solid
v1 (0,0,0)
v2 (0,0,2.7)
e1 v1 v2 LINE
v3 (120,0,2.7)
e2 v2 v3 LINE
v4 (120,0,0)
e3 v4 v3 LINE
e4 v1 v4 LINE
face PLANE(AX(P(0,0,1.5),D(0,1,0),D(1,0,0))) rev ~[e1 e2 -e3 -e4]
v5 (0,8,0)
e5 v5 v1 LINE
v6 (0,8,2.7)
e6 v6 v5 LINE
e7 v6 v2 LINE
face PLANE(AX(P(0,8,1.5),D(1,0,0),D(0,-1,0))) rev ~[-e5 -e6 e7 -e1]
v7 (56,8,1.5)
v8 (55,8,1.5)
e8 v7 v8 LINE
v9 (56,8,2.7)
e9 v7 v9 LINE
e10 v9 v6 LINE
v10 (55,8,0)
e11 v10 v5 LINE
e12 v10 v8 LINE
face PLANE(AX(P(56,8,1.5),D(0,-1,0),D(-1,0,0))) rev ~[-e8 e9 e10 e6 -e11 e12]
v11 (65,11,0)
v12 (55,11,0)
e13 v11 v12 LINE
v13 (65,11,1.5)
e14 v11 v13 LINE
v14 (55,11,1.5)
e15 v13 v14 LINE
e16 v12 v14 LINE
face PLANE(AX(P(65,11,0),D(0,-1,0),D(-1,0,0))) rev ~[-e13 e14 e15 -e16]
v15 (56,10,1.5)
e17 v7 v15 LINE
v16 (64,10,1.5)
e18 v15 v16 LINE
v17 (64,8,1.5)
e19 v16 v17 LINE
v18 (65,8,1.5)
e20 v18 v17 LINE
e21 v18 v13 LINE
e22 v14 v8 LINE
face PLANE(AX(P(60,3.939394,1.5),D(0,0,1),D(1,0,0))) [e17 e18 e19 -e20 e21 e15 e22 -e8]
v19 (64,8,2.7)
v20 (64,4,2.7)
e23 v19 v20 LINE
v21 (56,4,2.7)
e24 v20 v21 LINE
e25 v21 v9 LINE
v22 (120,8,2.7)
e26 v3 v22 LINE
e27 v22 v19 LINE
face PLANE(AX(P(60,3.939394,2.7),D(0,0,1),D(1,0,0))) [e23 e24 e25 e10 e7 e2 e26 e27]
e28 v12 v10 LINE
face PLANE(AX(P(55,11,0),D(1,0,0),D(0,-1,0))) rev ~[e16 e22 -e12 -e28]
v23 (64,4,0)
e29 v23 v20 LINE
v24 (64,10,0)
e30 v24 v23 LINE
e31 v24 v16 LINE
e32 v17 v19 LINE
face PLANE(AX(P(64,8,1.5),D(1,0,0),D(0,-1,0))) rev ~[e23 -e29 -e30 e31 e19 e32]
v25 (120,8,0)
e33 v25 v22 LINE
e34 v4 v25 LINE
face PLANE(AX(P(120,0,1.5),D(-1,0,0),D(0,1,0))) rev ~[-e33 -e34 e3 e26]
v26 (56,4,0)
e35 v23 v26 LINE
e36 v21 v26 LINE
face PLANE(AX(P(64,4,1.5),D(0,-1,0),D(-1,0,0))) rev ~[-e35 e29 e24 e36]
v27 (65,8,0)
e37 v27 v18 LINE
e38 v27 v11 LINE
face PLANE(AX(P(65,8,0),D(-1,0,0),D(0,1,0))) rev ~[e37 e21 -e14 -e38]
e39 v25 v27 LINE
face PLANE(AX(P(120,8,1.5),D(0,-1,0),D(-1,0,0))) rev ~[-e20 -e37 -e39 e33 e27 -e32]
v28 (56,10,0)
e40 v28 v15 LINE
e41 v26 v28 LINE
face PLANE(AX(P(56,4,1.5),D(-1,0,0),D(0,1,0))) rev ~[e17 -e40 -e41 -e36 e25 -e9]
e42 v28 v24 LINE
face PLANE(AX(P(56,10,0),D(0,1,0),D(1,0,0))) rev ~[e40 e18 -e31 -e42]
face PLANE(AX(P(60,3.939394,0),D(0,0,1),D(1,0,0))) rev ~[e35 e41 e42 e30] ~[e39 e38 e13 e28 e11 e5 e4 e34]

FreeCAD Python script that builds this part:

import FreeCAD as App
import Part
import Sketcher
Q = App.Units.Quantity

doc = App.newDocument("Part")
body = doc.addObject("PartDesign::Body", "Body")

# Sketch on XY plane
sketch1 = body.newObject("Sketcher::SketchObject", "Sketch")
sketch1.AttachmentSupport = (doc.getObject("XY_Plane"), [""])
sketch1.MapMode = "FlatFace"
sketch1.addGeometry(Part.LineSegment(App.Vector(0, 8, 0), App.Vector(0, 0, 0)), False)
sketch1.addGeometry(Part.LineSegment(App.Vector(0, 0, 0), App.Vector(120, 0, 0)), False)
sketch1.addGeometry(Part.LineSegment(App.Vector(120, 0, 0), App.Vector(120, 8, 0)), False)
sketch1.addGeometry(Part.LineSegment(App.Vector(120, 8, 0), App.Vector(65, 8, 0)), False)
sketch1.addGeometry(Part.LineSegment(App.Vector(65, 8, 0), App.Vector(65, 11, 0)), False)
sketch1.addGeometry(Part.LineSegment(App.Vector(65, 11, 0), App.Vector(55, 11, 0)), False)
sketch1.addGeometry(Part.LineSegment(App.Vector(55, 11, 0), App.Vector(55, 8, 0)), False)
sketch1.addGeometry(Part.LineSegment(App.Vector(55, 8, 0), App.Vector(0, 8, 0)), False)
sketch1.addGeometry(Part.LineSegment(App.Vector(64, 4, 0), App.Vector(56, 4, 0)), False)
sketch1.addGeometry(Part.LineSegment(App.Vector(56, 4, 0), App.Vector(56, 10, 0)), False)
sketch1.addGeometry(Part.LineSegment(App.Vector(56, 10, 0), App.Vector(64, 10, 0)), False)
sketch1.addGeometry(Part.LineSegment(App.Vector(64, 10, 0), App.Vector(64, 4, 0)), False)
sketch1.addConstraint(Sketcher.Constraint("Coincident", 0, 2, 1, 1))
sketch1.addConstraint(Sketcher.Constraint("Coincident", 1, 2, 2, 1))
sketch1.addConstraint(Sketcher.Constraint("Coincident", 2, 2, 3, 1))
sketch1.addConstraint(Sketcher.Constraint("Coincident", 3, 2, 4, 1))
sketch1.addConstraint(Sketcher.Constraint("Coincident", 4, 2, 5, 1))
sketch1.addConstraint(Sketcher.Constraint("Coincident", 5, 2, 6, 1))
sketch1.addConstraint(Sketcher.Constraint("Coincident", 6, 2, 7, 1))
sketch1.addConstraint(Sketcher.Constraint("Coincident", 7, 2, 0, 1))
sketch1.addConstraint(Sketcher.Constraint("Coincident", 8, 2, 9, 1))
sketch1.addConstraint(Sketcher.Constraint("Coincident", 9, 2, 10, 1))
sketch1.addConstraint(Sketcher.Constraint("Coincident", 10, 2, 11, 1))
sketch1.addConstraint(Sketcher.Constraint("Coincident", 11, 2, 8, 1))
sketch1.addConstraint(Sketcher.Constraint("Vertical", 0))
sketch1.addConstraint(Sketcher.Constraint("Horizontal", 1))
sketch1.addConstraint(Sketcher.Constraint("Vertical", 2))
sketch1.addConstraint(Sketcher.Constraint("Horizontal", 3))
sketch1.addConstraint(Sketcher.Constraint("Vertical", 4))
sketch1.addConstraint(Sketcher.Constraint("Horizontal", 5))
sketch1.addConstraint(Sketcher.Constraint("Vertical", 6))
sketch1.addConstraint(Sketcher.Constraint("Horizontal", 7))
sketch1.addConstraint(Sketcher.Constraint("Horizontal", 8))
sketch1.addConstraint(Sketcher.Constraint("Vertical", 9))
sketch1.addConstraint(Sketcher.Constraint("Horizontal", 10))
sketch1.addConstraint(Sketcher.Constraint("Vertical", 11))
sketch1.addConstraint(Sketcher.Constraint("Coincident", 0, 2, -1, 1))
sketch1.addConstraint(Sketcher.Constraint("Horizontal", 3, 2, 6, 2))
sketch1.addConstraint(Sketcher.Constraint("Equal", 3, 7))
sketch1.addConstraint(Sketcher.Constraint("Equal", 10, 0))
sketch1.addConstraint(Sketcher.Constraint("DistanceX", 1, 1, 1, 2, Q("120 mm")))
sketch1.addConstraint(Sketcher.Constraint("DistanceX", 3, 2, 3, 1, Q("55 mm")))
sketch1.addConstraint(Sketcher.Constraint("DistanceX", 8, 2, 8, 1, Q("8 mm")))
sketch1.addConstraint(Sketcher.Constraint("DistanceY", 4, 1, 4, 2, Q("3 mm")))
sketch1.addConstraint(Sketcher.Constraint("DistanceY", 9, 1, 9, 2, Q("6 mm")))
sketch1.addConstraint(Sketcher.Constraint("DistanceX", -1, 1, 8, 2, Q("56 mm")))
sketch1.addConstraint(Sketcher.Constraint("DistanceY", -1, 1, 8, 2, Q("4 mm")))
pad1 = body.newObject("PartDesign::Pad", "Pad")
pad1.Profile = sketch1
pad1.Length = 1.5

# Sketch on XY plane
sketch2 = body.newObject("Sketcher::SketchObject", "Sketch001")
sketch2.AttachmentSupport = (doc.getObject("XY_Plane"), [""])
sketch2.MapMode = "FlatFace"
sketch2.AttachmentOffset = App.Placement(App.Vector(0, 0, 1.5), App.Rotation())
sketch2.addGeometry(Part.LineSegment(App.Vector(0, 8, 0), App.Vector(0, 0, 0)), False)
sketch2.addGeometry(Part.LineSegment(App.Vector(0, 0, 0), App.Vector(120, 0, 0)), False)
sketch2.addGeometry(Part.LineSegment(App.Vector(120, 0, 0), App.Vector(120, 8, 0)), False)
sketch2.addGeometry(Part.LineSegment(App.Vector(120, 8, 0), App.Vector(64, 8, 0)), False)
sketch2.addGeometry(Part.LineSegment(App.Vector(64, 8, 0), App.Vector(64, 4, 0)), False)
sketch2.addGeometry(Part.LineSegment(App.Vector(64, 4, 0), App.Vector(56, 4, 0)), False)
sketch2.addGeometry(Part.LineSegment(App.Vector(56, 4, 0), App.Vector(56, 8, 0)), False)
sketch2.addGeometry(Part.LineSegment(App.Vector(56, 8, 0), App.Vector(0, 8, 0)), False)
sketch2.addConstraint(Sketcher.Constraint("Coincident", 0, 2, 1, 1))
sketch2.addConstraint(Sketcher.Constraint("Coincident", 1, 2, 2, 1))
sketch2.addConstraint(Sketcher.Constraint("Coincident", 2, 2, 3, 1))
sketch2.addConstraint(Sketcher.Constraint("Coincident", 3, 2, 4, 1))
sketch2.addConstraint(Sketcher.Constraint("Coincident", 4, 2, 5, 1))
sketch2.addConstraint(Sketcher.Constraint("Coincident", 5, 2, 6, 1))
sketch2.addConstraint(Sketcher.Constraint("Coincident", 6, 2, 7, 1))
sketch2.addConstraint(Sketcher.Constraint("Coincident", 7, 2, 0, 1))
sketch2.addConstraint(Sketcher.Constraint("Vertical", 0))
sketch2.addConstraint(Sketcher.Constraint("Horizontal", 1))
sketch2.addConstraint(Sketcher.Constraint("Vertical", 2))
sketch2.addConstraint(Sketcher.Constraint("Horizontal", 3))
sketch2.addConstraint(Sketcher.Constraint("Vertical", 4))
sketch2.addConstraint(Sketcher.Constraint("Horizontal", 5))
sketch2.addConstraint(Sketcher.Constraint("Vertical", 6))
sketch2.addConstraint(Sketcher.Constraint("Horizontal", 7))
sketch2.addConstraint(Sketcher.Constraint("Coincident", 0, 2, -1, 1))
sketch2.addConstraint(Sketcher.Constraint("Horizontal", 3, 2, 6, 2))
sketch2.addConstraint(Sketcher.Constraint("Equal", 3, 7))
sketch2.addConstraint(Sketcher.Constraint("Equal", 5, 0))
sketch2.addConstraint(Sketcher.Constraint("DistanceX", 1, 1, 1, 2, Q("120 mm")))
sketch2.addConstraint(Sketcher.Constraint("DistanceX", 3, 2, 3, 1, Q("56 mm")))
sketch2.addConstraint(Sketcher.Constraint("DistanceY", 4, 2, 4, 1, Q("4 mm")))
pad2 = body.newObject("PartDesign::Pad", "Pad001")
pad2.Profile = sketch2
pad2.Length = 1.2

doc.recompute()
